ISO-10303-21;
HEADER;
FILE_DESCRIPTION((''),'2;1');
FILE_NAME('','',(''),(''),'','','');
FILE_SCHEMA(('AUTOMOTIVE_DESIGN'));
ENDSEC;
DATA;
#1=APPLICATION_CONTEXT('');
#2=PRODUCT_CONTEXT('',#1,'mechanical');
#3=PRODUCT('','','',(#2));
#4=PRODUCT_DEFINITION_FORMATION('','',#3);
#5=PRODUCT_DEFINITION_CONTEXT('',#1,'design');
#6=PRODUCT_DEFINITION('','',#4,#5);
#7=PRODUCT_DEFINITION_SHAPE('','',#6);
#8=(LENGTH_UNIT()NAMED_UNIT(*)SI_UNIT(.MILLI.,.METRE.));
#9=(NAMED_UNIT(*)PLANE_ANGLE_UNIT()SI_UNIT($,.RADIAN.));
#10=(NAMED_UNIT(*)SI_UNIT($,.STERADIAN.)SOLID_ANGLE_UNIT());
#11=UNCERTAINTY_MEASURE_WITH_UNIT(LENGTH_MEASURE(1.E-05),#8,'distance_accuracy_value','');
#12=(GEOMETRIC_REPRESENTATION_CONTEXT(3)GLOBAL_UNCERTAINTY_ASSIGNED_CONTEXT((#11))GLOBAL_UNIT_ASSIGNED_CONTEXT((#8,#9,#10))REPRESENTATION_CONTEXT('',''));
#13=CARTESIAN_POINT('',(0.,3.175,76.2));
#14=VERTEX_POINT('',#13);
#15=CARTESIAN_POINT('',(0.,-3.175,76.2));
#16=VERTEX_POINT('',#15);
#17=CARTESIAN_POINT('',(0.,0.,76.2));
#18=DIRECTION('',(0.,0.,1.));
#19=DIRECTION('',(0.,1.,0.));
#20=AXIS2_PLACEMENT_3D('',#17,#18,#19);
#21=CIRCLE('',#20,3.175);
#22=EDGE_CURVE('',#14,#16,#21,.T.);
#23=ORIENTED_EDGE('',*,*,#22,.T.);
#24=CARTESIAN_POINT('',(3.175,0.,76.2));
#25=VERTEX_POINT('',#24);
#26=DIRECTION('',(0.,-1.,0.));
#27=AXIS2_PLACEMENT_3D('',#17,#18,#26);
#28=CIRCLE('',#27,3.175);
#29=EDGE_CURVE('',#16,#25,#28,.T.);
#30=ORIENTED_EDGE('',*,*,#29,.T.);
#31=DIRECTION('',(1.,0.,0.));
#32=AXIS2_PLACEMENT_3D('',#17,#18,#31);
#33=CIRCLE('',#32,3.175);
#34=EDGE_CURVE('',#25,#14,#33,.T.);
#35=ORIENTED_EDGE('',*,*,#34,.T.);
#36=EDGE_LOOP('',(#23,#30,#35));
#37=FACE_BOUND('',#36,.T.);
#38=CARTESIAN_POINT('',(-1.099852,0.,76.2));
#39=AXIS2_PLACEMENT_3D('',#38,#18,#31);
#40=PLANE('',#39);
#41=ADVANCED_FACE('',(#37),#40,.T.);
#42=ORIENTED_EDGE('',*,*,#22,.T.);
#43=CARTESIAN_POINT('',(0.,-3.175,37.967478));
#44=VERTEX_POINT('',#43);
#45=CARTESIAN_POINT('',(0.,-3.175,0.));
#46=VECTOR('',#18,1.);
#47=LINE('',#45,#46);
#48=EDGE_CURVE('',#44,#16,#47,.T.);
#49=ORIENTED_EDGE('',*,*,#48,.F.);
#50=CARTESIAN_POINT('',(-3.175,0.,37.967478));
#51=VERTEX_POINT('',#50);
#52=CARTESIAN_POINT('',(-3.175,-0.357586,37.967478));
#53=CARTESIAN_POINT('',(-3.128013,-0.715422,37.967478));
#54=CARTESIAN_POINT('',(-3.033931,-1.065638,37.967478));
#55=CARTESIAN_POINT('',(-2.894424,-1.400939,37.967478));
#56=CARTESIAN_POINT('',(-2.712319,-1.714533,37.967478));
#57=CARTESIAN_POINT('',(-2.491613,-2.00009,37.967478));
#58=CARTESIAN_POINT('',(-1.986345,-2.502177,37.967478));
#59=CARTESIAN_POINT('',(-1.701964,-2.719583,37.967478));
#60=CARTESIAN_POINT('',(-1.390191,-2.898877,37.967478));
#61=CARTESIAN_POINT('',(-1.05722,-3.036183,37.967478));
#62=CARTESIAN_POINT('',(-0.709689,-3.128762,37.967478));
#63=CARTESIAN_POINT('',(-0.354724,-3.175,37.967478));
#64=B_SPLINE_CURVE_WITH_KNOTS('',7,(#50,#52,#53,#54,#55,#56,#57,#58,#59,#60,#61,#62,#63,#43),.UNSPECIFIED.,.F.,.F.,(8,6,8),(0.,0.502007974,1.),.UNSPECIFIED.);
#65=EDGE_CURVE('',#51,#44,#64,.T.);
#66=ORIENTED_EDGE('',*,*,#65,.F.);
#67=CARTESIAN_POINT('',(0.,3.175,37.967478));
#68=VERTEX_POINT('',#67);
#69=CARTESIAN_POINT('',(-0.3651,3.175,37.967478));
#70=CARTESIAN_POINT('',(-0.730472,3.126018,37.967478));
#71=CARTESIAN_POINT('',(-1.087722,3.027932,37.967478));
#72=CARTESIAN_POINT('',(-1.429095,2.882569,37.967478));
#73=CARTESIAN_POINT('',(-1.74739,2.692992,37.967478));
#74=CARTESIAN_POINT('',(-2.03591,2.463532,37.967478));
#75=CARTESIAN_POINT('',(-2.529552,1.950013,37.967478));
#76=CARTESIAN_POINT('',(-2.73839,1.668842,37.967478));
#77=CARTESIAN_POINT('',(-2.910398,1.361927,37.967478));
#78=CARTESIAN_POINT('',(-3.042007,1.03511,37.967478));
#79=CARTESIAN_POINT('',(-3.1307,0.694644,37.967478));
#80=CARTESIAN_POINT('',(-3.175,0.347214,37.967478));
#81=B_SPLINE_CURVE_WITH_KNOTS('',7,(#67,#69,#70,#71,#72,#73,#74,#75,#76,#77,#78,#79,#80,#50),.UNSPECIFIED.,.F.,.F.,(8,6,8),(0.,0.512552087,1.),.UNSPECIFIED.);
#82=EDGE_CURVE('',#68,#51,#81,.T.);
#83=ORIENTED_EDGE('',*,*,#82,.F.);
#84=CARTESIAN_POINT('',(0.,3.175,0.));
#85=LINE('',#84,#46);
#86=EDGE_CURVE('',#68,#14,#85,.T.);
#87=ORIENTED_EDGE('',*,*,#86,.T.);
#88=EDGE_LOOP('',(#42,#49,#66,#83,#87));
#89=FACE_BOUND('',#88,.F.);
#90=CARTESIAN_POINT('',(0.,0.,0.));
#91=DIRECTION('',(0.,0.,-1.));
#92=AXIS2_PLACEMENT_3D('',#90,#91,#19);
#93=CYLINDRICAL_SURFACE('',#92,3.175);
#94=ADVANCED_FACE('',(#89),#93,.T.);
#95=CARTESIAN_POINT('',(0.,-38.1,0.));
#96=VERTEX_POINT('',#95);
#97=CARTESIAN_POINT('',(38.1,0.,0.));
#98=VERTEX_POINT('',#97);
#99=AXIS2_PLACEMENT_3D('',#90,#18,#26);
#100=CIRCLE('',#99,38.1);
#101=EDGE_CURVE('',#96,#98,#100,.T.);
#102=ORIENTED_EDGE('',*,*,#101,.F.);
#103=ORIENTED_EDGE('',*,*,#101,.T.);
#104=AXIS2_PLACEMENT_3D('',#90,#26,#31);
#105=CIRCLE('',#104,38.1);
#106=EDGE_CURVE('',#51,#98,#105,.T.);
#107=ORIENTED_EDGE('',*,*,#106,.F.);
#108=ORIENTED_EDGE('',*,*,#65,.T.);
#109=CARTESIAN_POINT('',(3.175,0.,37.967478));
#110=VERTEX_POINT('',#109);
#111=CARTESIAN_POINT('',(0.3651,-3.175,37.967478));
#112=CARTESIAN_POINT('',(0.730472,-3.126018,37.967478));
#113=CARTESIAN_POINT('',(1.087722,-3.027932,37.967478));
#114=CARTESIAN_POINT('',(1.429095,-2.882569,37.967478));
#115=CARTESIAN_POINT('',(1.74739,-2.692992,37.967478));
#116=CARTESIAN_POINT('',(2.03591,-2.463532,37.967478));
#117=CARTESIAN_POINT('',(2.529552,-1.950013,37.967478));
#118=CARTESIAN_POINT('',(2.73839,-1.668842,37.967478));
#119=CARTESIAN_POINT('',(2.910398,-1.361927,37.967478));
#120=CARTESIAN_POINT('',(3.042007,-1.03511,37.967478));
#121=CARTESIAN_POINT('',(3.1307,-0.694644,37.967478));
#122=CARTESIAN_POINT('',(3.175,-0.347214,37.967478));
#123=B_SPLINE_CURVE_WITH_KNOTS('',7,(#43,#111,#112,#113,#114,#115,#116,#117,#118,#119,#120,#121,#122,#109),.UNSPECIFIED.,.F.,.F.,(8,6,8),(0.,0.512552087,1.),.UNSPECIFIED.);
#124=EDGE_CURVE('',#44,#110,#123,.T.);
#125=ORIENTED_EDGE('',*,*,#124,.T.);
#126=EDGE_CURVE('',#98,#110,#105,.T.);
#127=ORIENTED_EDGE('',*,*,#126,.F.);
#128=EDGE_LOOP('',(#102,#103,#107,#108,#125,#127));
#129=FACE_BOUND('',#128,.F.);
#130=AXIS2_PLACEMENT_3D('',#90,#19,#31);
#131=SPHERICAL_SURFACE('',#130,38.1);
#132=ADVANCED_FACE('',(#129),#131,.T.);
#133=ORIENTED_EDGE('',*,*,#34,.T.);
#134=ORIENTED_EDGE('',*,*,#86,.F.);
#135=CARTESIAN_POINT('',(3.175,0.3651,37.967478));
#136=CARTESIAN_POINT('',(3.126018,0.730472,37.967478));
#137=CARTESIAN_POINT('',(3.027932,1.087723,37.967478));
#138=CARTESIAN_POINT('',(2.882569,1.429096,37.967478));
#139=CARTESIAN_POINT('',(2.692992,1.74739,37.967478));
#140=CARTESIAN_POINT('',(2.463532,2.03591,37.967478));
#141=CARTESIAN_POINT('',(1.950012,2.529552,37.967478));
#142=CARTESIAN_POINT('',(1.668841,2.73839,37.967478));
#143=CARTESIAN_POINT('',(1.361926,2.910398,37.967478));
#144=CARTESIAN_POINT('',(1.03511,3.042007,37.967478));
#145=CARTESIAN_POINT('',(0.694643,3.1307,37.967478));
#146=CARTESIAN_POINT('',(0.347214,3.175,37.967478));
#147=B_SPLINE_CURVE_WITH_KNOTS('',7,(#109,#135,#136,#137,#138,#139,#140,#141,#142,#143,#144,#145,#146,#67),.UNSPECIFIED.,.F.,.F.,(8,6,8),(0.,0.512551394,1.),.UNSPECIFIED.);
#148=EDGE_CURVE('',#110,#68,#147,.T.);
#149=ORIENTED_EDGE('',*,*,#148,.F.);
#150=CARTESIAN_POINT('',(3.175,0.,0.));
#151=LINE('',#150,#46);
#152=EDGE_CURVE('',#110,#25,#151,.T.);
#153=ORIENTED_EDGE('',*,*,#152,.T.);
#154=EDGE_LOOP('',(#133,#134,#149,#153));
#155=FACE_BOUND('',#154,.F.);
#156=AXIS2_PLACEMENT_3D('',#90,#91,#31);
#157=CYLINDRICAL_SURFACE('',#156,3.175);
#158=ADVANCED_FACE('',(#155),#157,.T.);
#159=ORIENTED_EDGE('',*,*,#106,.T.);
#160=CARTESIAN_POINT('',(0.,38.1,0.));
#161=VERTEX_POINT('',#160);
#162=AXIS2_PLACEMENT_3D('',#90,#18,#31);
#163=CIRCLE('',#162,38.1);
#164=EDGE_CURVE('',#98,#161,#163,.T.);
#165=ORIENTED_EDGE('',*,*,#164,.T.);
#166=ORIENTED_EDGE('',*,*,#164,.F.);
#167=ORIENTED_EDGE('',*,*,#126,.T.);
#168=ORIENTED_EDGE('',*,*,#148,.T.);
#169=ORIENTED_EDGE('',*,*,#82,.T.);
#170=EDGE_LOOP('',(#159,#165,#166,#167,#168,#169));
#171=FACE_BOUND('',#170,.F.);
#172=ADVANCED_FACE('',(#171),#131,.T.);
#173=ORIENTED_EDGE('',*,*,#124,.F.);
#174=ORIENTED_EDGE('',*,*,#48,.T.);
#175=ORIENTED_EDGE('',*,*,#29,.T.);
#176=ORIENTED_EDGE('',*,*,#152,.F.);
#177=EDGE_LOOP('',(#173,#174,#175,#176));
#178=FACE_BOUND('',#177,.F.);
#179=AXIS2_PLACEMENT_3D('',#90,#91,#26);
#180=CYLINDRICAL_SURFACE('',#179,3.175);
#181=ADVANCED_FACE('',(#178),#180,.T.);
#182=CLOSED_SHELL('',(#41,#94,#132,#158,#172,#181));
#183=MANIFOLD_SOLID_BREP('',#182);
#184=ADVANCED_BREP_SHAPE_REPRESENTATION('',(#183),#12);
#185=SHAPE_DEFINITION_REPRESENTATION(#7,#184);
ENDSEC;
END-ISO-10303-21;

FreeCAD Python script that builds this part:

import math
import FreeCAD as App
import Part
import Sketcher

V = App.Vector
Q = App.Units.Quantity

doc = App.newDocument("Part")
params = doc.addObject("Spreadsheet::Sheet", "Params")
for row, (alias, value) in enumerate([
    ("sketch1_radius", "1.5 in"),
    ("revolution_angle", "360 deg"),
    ("sketch2_radius", "0.125 in"),
    ("pad1_length", "3 in"),
], start=1):
    params.set(f"A{row}", alias)
    params.set(f"B{row}", "=" + value)
    params.setAlias(f"B{row}", alias)

body = doc.addObject("PartDesign::Body", "Body")

# Sketch on XY plane
sketch1 = body.newObject("Sketcher::SketchObject", "Sketch")
sketch1.AttachmentSupport = (doc.getObject("XY_Plane"), [""])
sketch1.MapMode = "FlatFace"
sketch1.addGeometry([
    Part.ArcOfCircle(Part.Circle(V(0, 0, 0), V(0, 0, 1), 38.1), math.radians(-90), math.radians(0)),
    Part.ArcOfCircle(Part.Circle(V(0, 0, 0), V(0, 0, 1), 38.1), math.radians(0), math.radians(90)),
    Part.LineSegment(V(0, 38.1, 0), V(0, -38.1, 0)),
], False)
sketch1.addConstraint([
    Sketcher.Constraint("Tangent", 0, 2, 1, 1),
    Sketcher.Constraint("Coincident", 1, 2, 2, 1),
    Sketcher.Constraint("Coincident", 2, 2, 0, 1),
    Sketcher.Constraint("Vertical", 2),
    Sketcher.Constraint("Coincident", 0, 3, -1, 1),
    Sketcher.Constraint("Equal", 0, 1),
    Sketcher.Constraint("PointOnObject", 0, 2, -1),
    Sketcher.Constraint("PointOnObject", 1, 2, -2),
    Sketcher.Constraint("Radius", 0, Q("1.5 in")),
])
sketch1.setExpression("Constraints[8]", "Params.sketch1_radius")
revolution = body.newObject("PartDesign::Revolution", "Revolution")
revolution.Profile = sketch1
revolution.ReferenceAxis = (sketch1, ["V_Axis"])
revolution.setExpression("Angle", "Params.revolution_angle")

# Sketch on XY plane
sketch2 = body.newObject("Sketcher::SketchObject", "Sketch001")
sketch2.AttachmentSupport = (doc.getObject("XY_Plane"), [""])
sketch2.MapMode = "FlatFace"
sketch2.addGeometry([
    Part.ArcOfCircle(Part.Circle(V(0, 0, 0), V(0, 0, 1), 3.175), math.radians(90), math.radians(270)),
    Part.ArcOfCircle(Part.Circle(V(0, 0, 0), V(0, 0, 1), 3.175), math.radians(-90), math.radians(0)),
    Part.ArcOfCircle(Part.Circle(V(0, 0, 0), V(0, 0, 1), 3.175), math.radians(0), math.radians(90)),
], False)
sketch2.addConstraint([
    Sketcher.Constraint("Tangent", 0, 2, 1, 1),
    Sketcher.Constraint("Tangent", 1, 2, 2, 1),
    Sketcher.Constraint("Tangent", 2, 2, 0, 1),
    Sketcher.Constraint("Coincident", 0, 3, -1, 1),
    Sketcher.Constraint("PointOnObject", 0, 2, -2),
    Sketcher.Constraint("PointOnObject", 1, 2, -1),
    Sketcher.Constraint("PointOnObject", 2, 2, -2),
    Sketcher.Constraint("Radius", 0, Q("0.125 in")),
])
sketch2.setExpression("Constraints[7]", "Params.sketch2_radius")
pad1 = body.newObject("PartDesign::Pad", "Pad")
pad1.Profile = sketch2
pad1.setExpression("Length", "Params.pad1_length")

doc.recompute()
